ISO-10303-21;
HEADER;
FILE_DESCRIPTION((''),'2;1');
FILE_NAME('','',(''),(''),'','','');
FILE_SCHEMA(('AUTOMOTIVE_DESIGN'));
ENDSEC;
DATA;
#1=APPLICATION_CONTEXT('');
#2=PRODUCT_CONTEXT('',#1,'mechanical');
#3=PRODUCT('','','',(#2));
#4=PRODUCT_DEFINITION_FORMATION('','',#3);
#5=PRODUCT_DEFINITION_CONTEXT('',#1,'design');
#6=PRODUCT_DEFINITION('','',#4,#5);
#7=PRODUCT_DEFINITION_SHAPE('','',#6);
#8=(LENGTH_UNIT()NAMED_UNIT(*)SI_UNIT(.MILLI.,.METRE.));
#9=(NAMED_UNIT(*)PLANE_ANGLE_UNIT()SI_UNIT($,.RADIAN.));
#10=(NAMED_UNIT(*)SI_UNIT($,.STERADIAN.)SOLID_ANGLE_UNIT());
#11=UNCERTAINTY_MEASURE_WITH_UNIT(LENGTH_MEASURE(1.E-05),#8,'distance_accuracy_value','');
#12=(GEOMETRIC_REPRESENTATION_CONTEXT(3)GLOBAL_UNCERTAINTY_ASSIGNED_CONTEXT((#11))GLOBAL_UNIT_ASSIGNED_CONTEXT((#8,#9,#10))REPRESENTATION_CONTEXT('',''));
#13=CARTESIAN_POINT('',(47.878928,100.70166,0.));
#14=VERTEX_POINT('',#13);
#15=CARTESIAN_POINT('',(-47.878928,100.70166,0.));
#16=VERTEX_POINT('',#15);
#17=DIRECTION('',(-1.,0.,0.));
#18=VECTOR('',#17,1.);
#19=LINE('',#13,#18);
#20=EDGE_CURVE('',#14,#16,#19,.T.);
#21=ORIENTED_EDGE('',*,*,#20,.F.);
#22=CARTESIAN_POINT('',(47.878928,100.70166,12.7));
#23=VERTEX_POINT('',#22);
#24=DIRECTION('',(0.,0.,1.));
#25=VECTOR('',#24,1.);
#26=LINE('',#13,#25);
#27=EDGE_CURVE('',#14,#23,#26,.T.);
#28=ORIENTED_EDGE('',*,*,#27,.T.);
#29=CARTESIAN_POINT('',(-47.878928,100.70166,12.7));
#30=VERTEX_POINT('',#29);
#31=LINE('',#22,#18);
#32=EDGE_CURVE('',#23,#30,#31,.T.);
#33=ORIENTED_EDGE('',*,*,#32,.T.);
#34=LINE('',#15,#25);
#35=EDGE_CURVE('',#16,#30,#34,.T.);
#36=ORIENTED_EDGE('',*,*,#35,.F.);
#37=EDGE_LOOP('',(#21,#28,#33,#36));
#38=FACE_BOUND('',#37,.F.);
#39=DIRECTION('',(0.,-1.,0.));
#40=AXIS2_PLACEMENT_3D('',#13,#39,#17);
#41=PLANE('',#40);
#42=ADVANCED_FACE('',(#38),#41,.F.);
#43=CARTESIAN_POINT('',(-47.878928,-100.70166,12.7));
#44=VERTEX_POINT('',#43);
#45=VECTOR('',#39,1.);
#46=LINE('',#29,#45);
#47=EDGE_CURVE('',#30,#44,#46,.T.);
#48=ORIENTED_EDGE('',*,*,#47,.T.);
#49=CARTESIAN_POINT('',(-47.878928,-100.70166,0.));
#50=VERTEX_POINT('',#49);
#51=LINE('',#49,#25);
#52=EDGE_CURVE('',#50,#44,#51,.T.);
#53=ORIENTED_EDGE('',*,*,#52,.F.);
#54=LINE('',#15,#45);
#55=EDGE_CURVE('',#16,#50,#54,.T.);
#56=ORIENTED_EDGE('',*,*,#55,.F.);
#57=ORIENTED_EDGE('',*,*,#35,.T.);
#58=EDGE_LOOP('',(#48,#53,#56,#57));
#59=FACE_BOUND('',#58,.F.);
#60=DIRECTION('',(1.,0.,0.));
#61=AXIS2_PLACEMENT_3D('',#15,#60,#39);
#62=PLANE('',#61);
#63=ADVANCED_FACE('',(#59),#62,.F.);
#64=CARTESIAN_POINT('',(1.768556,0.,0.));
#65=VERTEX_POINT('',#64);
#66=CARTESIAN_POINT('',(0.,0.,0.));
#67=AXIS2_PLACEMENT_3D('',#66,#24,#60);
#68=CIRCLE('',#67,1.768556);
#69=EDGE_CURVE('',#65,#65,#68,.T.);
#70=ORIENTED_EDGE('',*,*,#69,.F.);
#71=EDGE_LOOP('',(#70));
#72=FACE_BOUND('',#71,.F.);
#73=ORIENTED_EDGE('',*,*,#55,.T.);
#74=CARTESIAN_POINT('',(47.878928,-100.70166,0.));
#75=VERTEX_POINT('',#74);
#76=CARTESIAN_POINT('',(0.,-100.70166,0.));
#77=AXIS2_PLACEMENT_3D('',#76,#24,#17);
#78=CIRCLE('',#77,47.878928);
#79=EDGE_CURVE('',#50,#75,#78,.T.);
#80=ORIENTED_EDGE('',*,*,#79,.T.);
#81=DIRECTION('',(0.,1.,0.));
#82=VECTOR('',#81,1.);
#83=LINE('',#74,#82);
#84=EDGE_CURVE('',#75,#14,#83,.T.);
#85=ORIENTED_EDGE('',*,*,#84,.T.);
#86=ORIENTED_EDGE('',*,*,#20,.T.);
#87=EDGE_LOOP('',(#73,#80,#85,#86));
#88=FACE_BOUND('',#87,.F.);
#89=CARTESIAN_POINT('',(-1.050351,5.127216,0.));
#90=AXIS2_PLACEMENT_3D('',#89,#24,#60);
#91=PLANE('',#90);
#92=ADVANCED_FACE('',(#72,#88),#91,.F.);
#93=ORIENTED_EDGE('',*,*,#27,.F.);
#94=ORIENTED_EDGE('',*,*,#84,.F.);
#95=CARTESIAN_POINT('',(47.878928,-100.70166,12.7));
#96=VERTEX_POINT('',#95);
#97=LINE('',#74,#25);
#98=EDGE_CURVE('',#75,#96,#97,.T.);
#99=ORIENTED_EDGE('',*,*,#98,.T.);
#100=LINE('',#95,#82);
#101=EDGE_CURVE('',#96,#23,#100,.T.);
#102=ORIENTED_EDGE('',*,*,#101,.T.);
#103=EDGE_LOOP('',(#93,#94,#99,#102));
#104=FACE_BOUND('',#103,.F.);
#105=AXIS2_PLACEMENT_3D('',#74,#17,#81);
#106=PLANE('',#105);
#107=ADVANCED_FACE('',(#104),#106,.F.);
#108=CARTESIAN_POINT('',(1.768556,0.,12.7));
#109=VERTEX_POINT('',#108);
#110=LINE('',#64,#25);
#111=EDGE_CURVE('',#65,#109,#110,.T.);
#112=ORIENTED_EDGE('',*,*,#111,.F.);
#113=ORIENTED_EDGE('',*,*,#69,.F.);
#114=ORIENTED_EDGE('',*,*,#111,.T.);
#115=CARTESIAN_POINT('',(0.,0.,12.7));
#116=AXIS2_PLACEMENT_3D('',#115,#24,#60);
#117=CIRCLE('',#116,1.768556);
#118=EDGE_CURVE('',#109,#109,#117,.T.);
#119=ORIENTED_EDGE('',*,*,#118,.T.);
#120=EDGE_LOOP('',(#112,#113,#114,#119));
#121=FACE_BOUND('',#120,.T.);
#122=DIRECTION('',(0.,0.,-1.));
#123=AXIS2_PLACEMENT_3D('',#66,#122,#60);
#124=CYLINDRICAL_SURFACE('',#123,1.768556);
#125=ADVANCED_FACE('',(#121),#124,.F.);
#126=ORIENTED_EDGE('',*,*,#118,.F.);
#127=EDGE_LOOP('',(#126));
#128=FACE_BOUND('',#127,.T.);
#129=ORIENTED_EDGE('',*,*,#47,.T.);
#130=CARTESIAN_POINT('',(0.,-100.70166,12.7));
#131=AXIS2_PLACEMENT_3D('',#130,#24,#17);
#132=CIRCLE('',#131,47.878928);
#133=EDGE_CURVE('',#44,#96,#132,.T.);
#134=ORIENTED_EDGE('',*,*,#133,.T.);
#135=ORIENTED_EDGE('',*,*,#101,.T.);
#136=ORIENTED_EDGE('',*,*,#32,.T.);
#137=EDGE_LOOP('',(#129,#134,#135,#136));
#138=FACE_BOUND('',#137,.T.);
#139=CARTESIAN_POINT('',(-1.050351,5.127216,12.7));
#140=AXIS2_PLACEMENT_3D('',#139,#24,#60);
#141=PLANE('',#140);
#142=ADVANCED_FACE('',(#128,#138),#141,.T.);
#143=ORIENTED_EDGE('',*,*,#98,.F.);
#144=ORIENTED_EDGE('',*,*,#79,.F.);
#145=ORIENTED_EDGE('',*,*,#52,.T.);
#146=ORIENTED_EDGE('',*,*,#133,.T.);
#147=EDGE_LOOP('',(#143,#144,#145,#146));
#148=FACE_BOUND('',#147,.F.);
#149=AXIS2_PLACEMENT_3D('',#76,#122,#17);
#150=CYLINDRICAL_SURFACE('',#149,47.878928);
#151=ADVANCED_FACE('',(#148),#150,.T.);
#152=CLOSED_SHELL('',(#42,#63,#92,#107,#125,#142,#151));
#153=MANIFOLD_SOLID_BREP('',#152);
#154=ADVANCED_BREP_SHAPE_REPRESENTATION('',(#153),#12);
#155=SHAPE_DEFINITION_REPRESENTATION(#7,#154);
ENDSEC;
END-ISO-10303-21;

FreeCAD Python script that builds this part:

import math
import FreeCAD as App
import Part
import Sketcher

V = App.Vector
Q = App.Units.Quantity

doc = App.newDocument("Part")
body = doc.addObject("PartDesign::Body", "Body")

# Sketch on XY plane
sketch1 = body.newObject("Sketcher::SketchObject", "Sketch")
sketch1.AttachmentSupport = (doc.getObject("XY_Plane"), [""])
sketch1.MapMode = "FlatFace"
sketch1.addGeometry(Part.LineSegment(V(47.878928, 100.70166, 0), V(-47.878928, 100.70166, 0)), False)
sketch1.addGeometry(Part.LineSegment(V(-47.878928, 100.70166, 0), V(-47.878928, -100.70166, 0)), False)
sketch1.addGeometry(Part.ArcOfCircle(Part.Circle(V(0, -100.70166, 0), V(0, 0, 1), 47.878928), math.radians(180), math.radians(360)), False)
sketch1.addGeometry(Part.LineSegment(V(47.878928, -100.70166, 0), V(47.878928, 100.70166, 0)), False)
sketch1.addGeometry(Part.Circle(V(0, 0, 0), V(0, 0, 1), 1.768556), False)
sketch1.addConstraint(Sketcher.Constraint("Coincident", 0, 2, 1, 1))
sketch1.addConstraint(Sketcher.Constraint("Tangent", 1, 2, 2, 1))
sketch1.addConstraint(Sketcher.Constraint("Tangent", 2, 2, 3, 1))
sketch1.addConstraint(Sketcher.Constraint("Coincident", 3, 2, 0, 1))
sketch1.addConstraint(Sketcher.Constraint("Horizontal", 0))
sketch1.addConstraint(Sketcher.Constraint("Vertical", 1))
sketch1.addConstraint(Sketcher.Constraint("Vertical", 3))
sketch1.addConstraint(Sketcher.Constraint("Coincident", 4, 3, -1, 1))
sketch1.addConstraint(Sketcher.Constraint("Symmetric", 0, 2, 2, 2, -1, 1))
sketch1.addConstraint(Sketcher.Constraint("Diameter", 4, Q("3.537112 mm")))
sketch1.addConstraint(Sketcher.Constraint("Radius", 2, Q("47.878928 mm")))
sketch1.addConstraint(Sketcher.Constraint("DistanceY", 1, 2, 1, 1, Q("201.40332 mm")))
pad1 = body.newObject("PartDesign::Pad", "Pad")
pad1.Profile = sketch1
pad1.Length = Q("0.5 in")

doc.recompute()
